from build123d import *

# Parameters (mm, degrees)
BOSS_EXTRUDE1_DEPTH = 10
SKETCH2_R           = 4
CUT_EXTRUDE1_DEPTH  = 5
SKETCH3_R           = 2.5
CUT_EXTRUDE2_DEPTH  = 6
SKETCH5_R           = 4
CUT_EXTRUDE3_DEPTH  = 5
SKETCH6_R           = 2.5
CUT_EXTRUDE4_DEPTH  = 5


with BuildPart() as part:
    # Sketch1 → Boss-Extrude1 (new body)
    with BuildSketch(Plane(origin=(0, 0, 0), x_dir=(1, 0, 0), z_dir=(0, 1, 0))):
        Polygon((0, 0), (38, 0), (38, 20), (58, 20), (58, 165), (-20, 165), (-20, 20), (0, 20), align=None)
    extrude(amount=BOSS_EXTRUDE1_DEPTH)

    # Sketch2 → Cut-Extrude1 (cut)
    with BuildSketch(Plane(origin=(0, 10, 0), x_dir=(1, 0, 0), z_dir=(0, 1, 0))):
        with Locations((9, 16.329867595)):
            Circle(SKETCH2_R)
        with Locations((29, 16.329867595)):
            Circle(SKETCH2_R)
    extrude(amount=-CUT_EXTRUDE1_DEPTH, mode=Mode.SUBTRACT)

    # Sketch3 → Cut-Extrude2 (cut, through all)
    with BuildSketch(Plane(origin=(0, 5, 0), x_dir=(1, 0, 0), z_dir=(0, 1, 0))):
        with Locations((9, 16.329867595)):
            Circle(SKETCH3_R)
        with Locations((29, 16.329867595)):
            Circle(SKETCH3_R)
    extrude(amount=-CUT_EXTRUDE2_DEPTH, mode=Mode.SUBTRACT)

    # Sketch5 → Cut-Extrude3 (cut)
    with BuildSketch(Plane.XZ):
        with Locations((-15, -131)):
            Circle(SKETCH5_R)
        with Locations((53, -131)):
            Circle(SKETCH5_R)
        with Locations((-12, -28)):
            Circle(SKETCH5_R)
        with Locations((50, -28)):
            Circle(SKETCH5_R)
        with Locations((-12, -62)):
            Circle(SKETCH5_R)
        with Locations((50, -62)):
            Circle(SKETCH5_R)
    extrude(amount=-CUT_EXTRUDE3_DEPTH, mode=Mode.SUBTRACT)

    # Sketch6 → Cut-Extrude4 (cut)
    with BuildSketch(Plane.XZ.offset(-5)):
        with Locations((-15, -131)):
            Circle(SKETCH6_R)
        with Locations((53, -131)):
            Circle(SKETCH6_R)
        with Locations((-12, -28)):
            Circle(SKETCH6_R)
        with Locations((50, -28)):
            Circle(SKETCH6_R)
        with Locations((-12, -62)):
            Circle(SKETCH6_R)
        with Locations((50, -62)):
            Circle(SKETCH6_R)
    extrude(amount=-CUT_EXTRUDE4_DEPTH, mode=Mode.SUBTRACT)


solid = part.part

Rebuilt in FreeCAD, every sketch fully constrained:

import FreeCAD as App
import Part
import Sketcher

doc = App.newDocument("Part")
params = doc.addObject("Spreadsheet::Sheet", "Params")
for row, (alias, value) in enumerate([
    ("sketch1_width", "38 mm"),
    ("sketch1_width2", "20 mm"),
    ("sketch1_height", "145 mm"),
    ("pad1_length", "10 mm"),
    ("sketch2_diameter", "8 mm"),
    ("pocket1_length", "5 mm"),
    ("sketch3_diameter", "5 mm"),
    ("sketch4_diameter", "8 mm"),
    ("pocket3_length", "5 mm"),
    ("sketch5_diameter", "5 mm"),
    ("pocket4_length", "5 mm"),
], start=1):
    params.set(f"A{row}", alias)
    params.set(f"B{row}", "=" + value)
    params.setAlias(f"B{row}", alias)

body = doc.addObject("PartDesign::Body", "Body")

# Sketch on XZ plane
sketch1 = body.newObject("Sketcher::SketchObject", "Sketch")
sketch1.AttachmentSupport = (doc.getObject("XZ_Plane"), [""])
sketch1.MapMode = "FlatFace"
sketch1.addGeometry([
    Part.LineSegment(App.Vector(0, 0, 0), App.Vector(38, 0, 0)),  # 0
    Part.LineSegment(App.Vector(38, 0, 0), App.Vector(38, -20, 0)),  # 1
    Part.LineSegment(App.Vector(38, -20, 0), App.Vector(58, -20, 0)),  # 2
    Part.LineSegment(App.Vector(58, -20, 0), App.Vector(58, -165, 0)),  # 3
    Part.LineSegment(App.Vector(58, -165, 0), App.Vector(-20, -165, 0)),  # 4
    Part.LineSegment(App.Vector(-20, -165, 0), App.Vector(-20, -20, 0)),  # 5
    Part.LineSegment(App.Vector(-20, -20, 0), App.Vector(0, -20, 0)),  # 6
    Part.LineSegment(App.Vector(0, -20, 0), App.Vector(0, 0, 0)),  # 7
], False)
sketch1.addConstraint([
    Sketcher.Constraint("Coincident", 0, 2, 1, 1),
    Sketcher.Constraint("Coincident", 1, 2, 2, 1),
    Sketcher.Constraint("Coincident", 2, 2, 3, 1),
    Sketcher.Constraint("Coincident", 3, 2, 4, 1),
    Sketcher.Constraint("Coincident", 4, 2, 5, 1),
    Sketcher.Constraint("Coincident", 5, 2, 6, 1),
    Sketcher.Constraint("Coincident", 6, 2, 7, 1),
    Sketcher.Constraint("Coincident", 7, 2, 0, 1),
    Sketcher.Constraint("Horizontal", 0),
    Sketcher.Constraint("Vertical", 1),
    Sketcher.Constraint("Horizontal", 2),
    Sketcher.Constraint("Vertical", 3),
    Sketcher.Constraint("Horizontal", 4),
    Sketcher.Constraint("Vertical", 5),
    Sketcher.Constraint("Horizontal", 6),
    Sketcher.Constraint("Vertical", 7),
    Sketcher.Constraint("Coincident", 7, 2, -1, 1),
    Sketcher.Constraint("Horizontal", 2, 2, 5, 2),
    Sketcher.Constraint("Equal", 2, 6),
    Sketcher.Constraint("Equal", 6, 1),
    Sketcher.Constraint("DistanceX", 0, 1, 0, 2, 38.0),
    Sketcher.Constraint("DistanceX", 2, 1, 2, 2, 20.0),
    Sketcher.Constraint("DistanceY", 3, 2, 3, 1, 145.0),
])
sketch1.setExpression("Constraints[20]", "Params.sketch1_width")
sketch1.setExpression("Constraints[21]", "Params.sketch1_width2")
sketch1.setExpression("Constraints[22]", "Params.sketch1_height")
pad1 = body.newObject("PartDesign::Pad", "Pad")
pad1.Profile = sketch1
pad1.setExpression("Length", "Params.pad1_length")
pad1.Reversed = True

# Sketch on XZ plane
sketch2 = body.newObject("Sketcher::SketchObject", "Sketch001")
sketch2.AttachmentSupport = (doc.getObject("XZ_Plane"), [""])
sketch2.MapMode = "FlatFace"
sketch2.AttachmentOffset = App.Placement(App.Vector(0, 0, -10), App.Rotation())
sketch2.addGeometry([
    Part.Circle(App.Vector(9, -16.3, 0), App.Vector(0, 0, 1), 4),
    Part.Circle(App.Vector(29, -16.3, 0), App.Vector(0, 0, 1), 4),
], False)
sketch2.addConstraint([
    Sketcher.Constraint("Equal", 0, 1),
    Sketcher.Constraint("Horizontal", 0, 3, 1, 3),
    Sketcher.Constraint("Diameter", 0, 8.0),
    Sketcher.Constraint("DistanceX", -1, 1, 0, 3, 9.0),
    Sketcher.Constraint("DistanceX", -1, 1, 1, 3, 29.0),
    Sketcher.Constraint("DistanceY", 0, 3, -1, 1, 16.329868),
])
sketch2.setExpression("Constraints[2]", "Params.sketch2_diameter")
pocket1 = body.newObject("PartDesign::Pocket", "Pocket")
pocket1.Profile = sketch2
pocket1.setExpression("Length", "Params.pocket1_length")
pocket1.Reversed = True

# Sketch on XZ plane
sketch3 = body.newObject("Sketcher::SketchObject", "Sketch002")
sketch3.AttachmentSupport = (doc.getObject("XZ_Plane"), [""])
sketch3.MapMode = "FlatFace"
sketch3.AttachmentOffset = App.Placement(App.Vector(0, 0, -5), App.Rotation())
sketch3.addGeometry([
    Part.Circle(App.Vector(9, -16.3, 0), App.Vector(0, 0, 1), 2.5),
    Part.Circle(App.Vector(29, -16.3, 0), App.Vector(0, 0, 1), 2.5),
], False)
sketch3.addConstraint([
    Sketcher.Constraint("Equal", 0, 1),
    Sketcher.Constraint("Horizontal", 0, 3, 1, 3),
    Sketcher.Constraint("Diameter", 0, 5.0),
    Sketcher.Constraint("DistanceX", -1, 1, 0, 3, 9.0),
    Sketcher.Constraint("DistanceX", -1, 1, 1, 3, 29.0),
    Sketcher.Constraint("DistanceY", 0, 3, -1, 1, 16.329868),
])
sketch3.setExpression("Constraints[2]", "Params.sketch3_diameter")
pocket2 = body.newObject("PartDesign::Pocket", "Pocket001")
pocket2.Profile = sketch3
pocket2.Type = "ThroughAll"
pocket2.Reversed = True

# Sketch on XZ plane
sketch4 = body.newObject("Sketcher::SketchObject", "Sketch003")
sketch4.AttachmentSupport = (doc.getObject("XZ_Plane"), [""])
sketch4.MapMode = "FlatFace"
sketch4.addGeometry([
    Part.Circle(App.Vector(-15, -131, 0), App.Vector(0, 0, 1), 4),  # 0
    Part.Circle(App.Vector(53, -131, 0), App.Vector(0, 0, 1), 4),  # 1
    Part.Circle(App.Vector(-12, -28, 0), App.Vector(0, 0, 1), 4),  # 2
    Part.Circle(App.Vector(50, -28, 0), App.Vector(0, 0, 1), 4),  # 3
    Part.Circle(App.Vector(-12, -62, 0), App.Vector(0, 0, 1), 4),  # 4
    Part.Circle(App.Vector(50, -62, 0), App.Vector(0, 0, 1), 4),  # 5
], False)
sketch4.addConstraint([
    Sketcher.Constraint("Equal", 0, 1),
    Sketcher.Constraint("Equal", 1, 2),
    Sketcher.Constraint("Equal", 2, 3),
    Sketcher.Constraint("Equal", 3, 4),
    Sketcher.Constraint("Equal", 4, 5),
    Sketcher.Constraint("Horizontal", 0, 3, 1, 3),
    Sketcher.Constraint("Horizontal", 2, 3, 3, 3),
    Sketcher.Constraint("Horizontal", 4, 3, 5, 3),
    Sketcher.Constraint("Vertical", 2, 3, 4, 3),
    Sketcher.Constraint("Vertical", 3, 3, 5, 3),
    Sketcher.Constraint("Diameter", 0, 8.0),
    Sketcher.Constraint("DistanceX", 0, 3, -1, 1, 15.0),
    Sketcher.Constraint("DistanceY", 0, 3, -1, 1, 131.0),
    Sketcher.Constraint("DistanceX", -1, 1, 1, 3, 53.0),
    Sketcher.Constraint("DistanceX", 2, 3, -1, 1, 12.0),
    Sketcher.Constraint("DistanceY", 2, 3, -1, 1, 28.0),
    Sketcher.Constraint("DistanceX", -1, 1, 3, 3, 50.0),
    Sketcher.Constraint("DistanceY", 4, 3, -1, 1, 62.0),
])
sketch4.setExpression("Constraints[10]", "Params.sketch4_diameter")
pocket3 = body.newObject("PartDesign::Pocket", "Pocket002")
pocket3.Profile = sketch4
pocket3.setExpression("Length", "Params.pocket3_length")

# Sketch on XZ plane
sketch5 = body.newObject("Sketcher::SketchObject", "Sketch004")
sketch5.AttachmentSupport = (doc.getObject("XZ_Plane"), [""])
sketch5.MapMode = "FlatFace"
sketch5.AttachmentOffset = App.Placement(App.Vector(0, 0, -5), App.Rotation())
sketch5.addGeometry([
    Part.Circle(App.Vector(-15, -131, 0), App.Vector(0, 0, 1), 2.5),  # 0
    Part.Circle(App.Vector(53, -131, 0), App.Vector(0, 0, 1), 2.5),  # 1
    Part.Circle(App.Vector(-12, -28, 0), App.Vector(0, 0, 1), 2.5),  # 2
    Part.Circle(App.Vector(50, -28, 0), App.Vector(0, 0, 1), 2.5),  # 3
    Part.Circle(App.Vector(-12, -62, 0), App.Vector(0, 0, 1), 2.5),  # 4
    Part.Circle(App.Vector(50, -62, 0), App.Vector(0, 0, 1), 2.5),  # 5
], False)
sketch5.addConstraint([
    Sketcher.Constraint("Equal", 0, 1),
    Sketcher.Constraint("Equal", 1, 2),
    Sketcher.Constraint("Equal", 2, 3),
    Sketcher.Constraint("Equal", 3, 4),
    Sketcher.Constraint("Equal", 4, 5),
    Sketcher.Constraint("Horizontal", 0, 3, 1, 3),
    Sketcher.Constraint("Horizontal", 2, 3, 3, 3),
    Sketcher.Constraint("Horizontal", 4, 3, 5, 3),
    Sketcher.Constraint("Vertical", 2, 3, 4, 3),
    Sketcher.Constraint("Vertical", 3, 3, 5, 3),
    Sketcher.Constraint("Diameter", 0, 5.0),
    Sketcher.Constraint("DistanceX", 0, 3, -1, 1, 15.0),
    Sketcher.Constraint("DistanceY", 0, 3, -1, 1, 131.0),
    Sketcher.Constraint("DistanceX", -1, 1, 1, 3, 53.0),
    Sketcher.Constraint("DistanceX", 2, 3, -1, 1, 12.0),
    Sketcher.Constraint("DistanceY", 2, 3, -1, 1, 28.0),
    Sketcher.Constraint("DistanceX", -1, 1, 3, 3, 50.0),
    Sketcher.Constraint("DistanceY", 4, 3, -1, 1, 62.0),
])
sketch5.setExpression("Constraints[10]", "Params.sketch5_diameter")
pocket4 = body.newObject("PartDesign::Pocket", "Pocket003")
pocket4.Profile = sketch5
pocket4.setExpression("Length", "Params.pocket4_length")

doc.recompute()
